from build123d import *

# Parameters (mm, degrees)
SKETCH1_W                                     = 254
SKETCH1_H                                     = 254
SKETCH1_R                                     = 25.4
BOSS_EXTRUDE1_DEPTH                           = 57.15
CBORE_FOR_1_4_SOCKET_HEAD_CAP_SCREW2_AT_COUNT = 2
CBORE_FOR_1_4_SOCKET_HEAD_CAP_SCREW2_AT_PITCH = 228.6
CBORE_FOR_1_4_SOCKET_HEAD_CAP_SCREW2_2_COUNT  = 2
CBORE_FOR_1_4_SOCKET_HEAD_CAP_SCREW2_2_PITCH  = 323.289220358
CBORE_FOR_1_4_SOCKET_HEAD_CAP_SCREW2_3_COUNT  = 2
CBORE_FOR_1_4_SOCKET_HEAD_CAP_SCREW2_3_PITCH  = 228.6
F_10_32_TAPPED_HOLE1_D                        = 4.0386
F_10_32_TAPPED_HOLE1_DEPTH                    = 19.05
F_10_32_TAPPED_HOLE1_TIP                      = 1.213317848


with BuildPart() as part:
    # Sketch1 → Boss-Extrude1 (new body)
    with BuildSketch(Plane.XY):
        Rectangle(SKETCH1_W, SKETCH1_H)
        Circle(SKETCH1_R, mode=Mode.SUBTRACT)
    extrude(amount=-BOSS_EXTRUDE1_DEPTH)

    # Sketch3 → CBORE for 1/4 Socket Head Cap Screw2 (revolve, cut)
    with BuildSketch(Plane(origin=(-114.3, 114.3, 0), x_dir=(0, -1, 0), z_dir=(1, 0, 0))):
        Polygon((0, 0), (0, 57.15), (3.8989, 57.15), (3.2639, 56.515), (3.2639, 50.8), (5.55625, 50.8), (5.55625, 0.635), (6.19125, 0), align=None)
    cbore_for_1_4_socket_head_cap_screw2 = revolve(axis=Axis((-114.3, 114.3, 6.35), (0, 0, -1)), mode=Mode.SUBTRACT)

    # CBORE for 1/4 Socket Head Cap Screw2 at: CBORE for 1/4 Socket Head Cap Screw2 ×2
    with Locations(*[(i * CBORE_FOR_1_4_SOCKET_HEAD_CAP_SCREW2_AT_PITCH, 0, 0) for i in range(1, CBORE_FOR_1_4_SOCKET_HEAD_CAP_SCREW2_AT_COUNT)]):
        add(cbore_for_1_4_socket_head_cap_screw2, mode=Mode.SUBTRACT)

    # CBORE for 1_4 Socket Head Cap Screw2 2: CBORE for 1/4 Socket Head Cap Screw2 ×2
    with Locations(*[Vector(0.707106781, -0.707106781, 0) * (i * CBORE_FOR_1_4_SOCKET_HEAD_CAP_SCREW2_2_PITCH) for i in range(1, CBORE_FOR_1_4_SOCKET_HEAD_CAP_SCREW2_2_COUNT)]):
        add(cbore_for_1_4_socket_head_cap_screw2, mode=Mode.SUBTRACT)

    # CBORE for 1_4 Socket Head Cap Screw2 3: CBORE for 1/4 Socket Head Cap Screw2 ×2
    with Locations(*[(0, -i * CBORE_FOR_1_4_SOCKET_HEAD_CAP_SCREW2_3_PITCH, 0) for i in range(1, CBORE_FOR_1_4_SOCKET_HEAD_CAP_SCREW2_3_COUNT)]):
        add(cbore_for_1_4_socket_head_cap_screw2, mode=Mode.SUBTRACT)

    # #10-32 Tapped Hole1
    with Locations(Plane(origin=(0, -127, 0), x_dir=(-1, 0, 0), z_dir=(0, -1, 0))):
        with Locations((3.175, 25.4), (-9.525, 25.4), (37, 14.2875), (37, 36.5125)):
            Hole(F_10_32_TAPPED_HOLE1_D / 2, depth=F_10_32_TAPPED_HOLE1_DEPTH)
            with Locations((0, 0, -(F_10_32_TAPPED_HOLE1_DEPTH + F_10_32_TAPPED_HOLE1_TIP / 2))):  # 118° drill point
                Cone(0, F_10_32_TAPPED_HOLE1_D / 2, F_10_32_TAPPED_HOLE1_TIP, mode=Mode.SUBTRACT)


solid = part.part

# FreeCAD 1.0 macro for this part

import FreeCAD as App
import Part
import Sketcher
Q = App.Units.Quantity


def add_polygon(sketch, points):
    """Adds a closed chain of lines whose ends are joined by coincident constraints."""
    first, n = sketch.GeometryCount, len(points)
    for a, b in zip(points, points[1:] + points[:1]):
        sketch.addGeometry(Part.LineSegment(App.Vector(*a, 0), App.Vector(*b, 0)), False)
    for i in range(n):
        sketch.addConstraint(Sketcher.Constraint("Coincident", first + i, 2, first + (i + 1) % n, 1))

doc = App.newDocument("Part")
body = doc.addObject("PartDesign::Body", "Body")

# Sketch on XY plane
sketch1 = doc.addObject("Sketcher::SketchObject", "Sketch")
body.addObject(sketch1)
sketch1.AttachmentSupport = (doc.XY_Plane, [""])
sketch1.MapMode = "FlatFace"
add_polygon(sketch1, [(-127, 127), (-127, -127), (127, -127), (127, 127)])  # lines 0-3
sketch1.addGeometry(Part.Circle(App.Vector(0, 0, 0), App.Vector(0, 0, 1), 25.4), False)  # 4
sketch1.addConstraint(Sketcher.Constraint("Vertical", 0))
sketch1.addConstraint(Sketcher.Constraint("Horizontal", 1))
sketch1.addConstraint(Sketcher.Constraint("Vertical", 2))
sketch1.addConstraint(Sketcher.Constraint("Horizontal", 3))
sketch1.addConstraint(Sketcher.Constraint("Coincident", 4, 3, -1, 1))
sketch1.addConstraint(Sketcher.Constraint("Symmetric", 0, 2, 2, 2, -1, 1))
sketch1.addConstraint(Sketcher.Constraint("Equal", 3, 0))
sketch1.addConstraint(Sketcher.Constraint("Diameter", 4, Q("2 in")))
sketch1.addConstraint(Sketcher.Constraint("DistanceX", 1, 1, 1, 2, Q("10 in")))
pad1 = doc.addObject("PartDesign::Pad", "Pad")
body.addObject(pad1)
pad1.Profile = sketch1
pad1.Length = Q("2.25 in")
pad1.Reversed = True

# Sketch on YZ plane
sketch2 = doc.addObject("Sketcher::SketchObject", "Sketch001")
body.addObject(sketch2)
sketch2.AttachmentSupport = (doc.YZ_Plane, [""])
sketch2.MapMode = "FlatFace"
sketch2.AttachmentOffset = App.Placement(App.Vector(0, 0, -4.5 * 25.4), App.Rotation())
add_polygon(sketch2, [(114.3, -57.15), (114.3, 0), (108.10875, 0), (108.74375, -0.635), (108.74375, -50.8), (111.0361, -50.8), (111.0361, -56.515), (110.4011, -57.15)])  # lines 0-7
sketch2.addGeometry(Part.LineSegment(App.Vector(114.3, 0, 0), App.Vector(114.3, -57.15, 0)), True)  # axis
sketch2.addConstraint(Sketcher.Constraint("Vertical", 0))
sketch2.addConstraint(Sketcher.Constraint("Horizontal", 1))
sketch2.addConstraint(Sketcher.Constraint("Vertical", 3))
sketch2.addConstraint(Sketcher.Constraint("Horizontal", 4))
sketch2.addConstraint(Sketcher.Constraint("Vertical", 5))
sketch2.addConstraint(Sketcher.Constraint("Horizontal", 7))
sketch2.addConstraint(Sketcher.Constraint("Vertical", 8))
sketch2.addConstraint(Sketcher.Constraint("Coincident", 8, 1, 0, 2))
sketch2.addConstraint(Sketcher.Constraint("PointOnObject", 0, 2, -1))
sketch2.addConstraint(Sketcher.Constraint("Perpendicular", 2, 6))
sketch2.addConstraint(Sketcher.Constraint("Horizontal", 6, 2, 8, 2))
sketch2.addConstraint(Sketcher.Constraint("Equal", 2, 6))
sketch2.addConstraint(Sketcher.Constraint("DistanceY", 3, 2, -1, 1, Q("2 in")))
sketch2.addConstraint(Sketcher.Constraint("Angle", 2, Q("-45 deg")))
sketch2.addConstraint(Sketcher.Constraint("DistanceY", 0, 1, 0, 2, Q("2.25 in")))
sketch2.addConstraint(Sketcher.Constraint("DistanceX", -1, 1, 0, 2, Q("4.5 in")))
sketch2.addConstraint(Sketcher.Constraint("DistanceY", 5, 2, 2, 2, Q("2.2 in")))
sketch2.addConstraint(Sketcher.Constraint("DistanceX", 7, 1, 7, 2, Q("0.1535 in")))
sketch2.addConstraint(Sketcher.Constraint("DistanceX", -1, 1, 2, 2, Q("4.28125 in")))
groove = doc.addObject("PartDesign::Groove", "Groove")
body.addObject(groove)
groove.Profile = sketch2
groove.ReferenceAxis = (sketch2, ["Axis0"])
groove.Angle = 360
doc.recompute()

linearpattern = doc.addObject("PartDesign::LinearPattern", "LinearPattern")
body.addObject(linearpattern)
linearpattern.Originals = [groove]
linearpattern.Direction = (doc.X_Axis, [""])
linearpattern.Mode = "offset"
linearpattern.Offset = Q("9 in")
linearpattern.Occurrences = 2
body.Tip = linearpattern
doc.recompute()

datumline = doc.addObject("PartDesign::Line", "DatumLine")
body.addObject(datumline)
datumline.Placement = App.Placement(App.Vector(0, 0, 0), App.Rotation(App.Vector(0, 0, 1), App.Vector(0.707106781, -0.707106781, 0)))
linearpattern2 = doc.addObject("PartDesign::LinearPattern", "LinearPattern001")
body.addObject(linearpattern2)
linearpattern2.Originals = [groove]
linearpattern2.Direction = (datumline, [""])
linearpattern2.Mode = "offset"
linearpattern2.Offset = 323.28922
linearpattern2.Occurrences = 2
body.Tip = linearpattern2
doc.recompute()

linearpattern3 = doc.addObject("PartDesign::LinearPattern", "LinearPattern002")
body.addObject(linearpattern3)
linearpattern3.Originals = [groove]
linearpattern3.Direction = (doc.Y_Axis, [""])
linearpattern3.Mode = "offset"
linearpattern3.Offset = Q("9 in")
linearpattern3.Occurrences = 2
linearpattern3.Reversed = True
body.Tip = linearpattern3

# Sketch on XZ plane
sketch3 = doc.addObject("Sketcher::SketchObject", "Sketch002")
body.addObject(sketch3)
sketch3.AttachmentSupport = (doc.XZ_Plane, [""])
sketch3.MapMode = "FlatFace"
sketch3.AttachmentOffset = App.Placement(App.Vector(0, 0, 5 * 25.4), App.Rotation())
sketch3.addGeometry(Part.Circle(App.Vector(-3.175, -25.4, 0), App.Vector(0, 0, 1), 2.0193), False)
sketch3.addGeometry(Part.Circle(App.Vector(9.525, -25.4, 0), App.Vector(0, 0, 1), 2.0193), False)
sketch3.addGeometry(Part.Circle(App.Vector(-37, -14.2875, 0), App.Vector(0, 0, 1), 2.0193), False)
sketch3.addGeometry(Part.Circle(App.Vector(-37, -36.5125, 0), App.Vector(0, 0, 1), 2.0193), False)
sketch3.addConstraint(Sketcher.Constraint("Equal", 0, 1))
sketch3.addConstraint(Sketcher.Constraint("Equal", 1, 2))
sketch3.addConstraint(Sketcher.Constraint("Equal", 2, 3))
sketch3.addConstraint(Sketcher.Constraint("Horizontal", 0, 3, 1, 3))
sketch3.addConstraint(Sketcher.Constraint("Vertical", 2, 3, 3, 3))
sketch3.addConstraint(Sketcher.Constraint("Diameter", 0, Q("0.159 in")))
sketch3.addConstraint(Sketcher.Constraint("DistanceY", 0, 3, -1, 1, Q("1 in")))
sketch3.addConstraint(Sketcher.Constraint("DistanceX", 0, 3, 1, 3, Q("0.5 in")))
sketch3.addConstraint(Sketcher.Constraint("DistanceX", 0, 3, -1, 1, Q("0.125 in")))
sketch3.addConstraint(Sketcher.Constraint("DistanceY", 2, 3, -1, 1, Q("0.5625 in")))
sketch3.addConstraint(Sketcher.Constraint("DistanceY", 3, 3, -1, 1, Q("1.4375 in")))
sketch3.addConstraint(Sketcher.Constraint("DistanceX", 2, 3, -1, 1, 37.0))
doc.recompute()
hole = doc.addObject("PartDesign::Hole", "Hole")
body.addObject(hole)
hole.Profile = sketch3
hole.ThreadType = "None"
hole.Diameter = Q("0.159 in")
hole.DepthType = "Dimension"
hole.Depth = Q("0.75 in")
hole.DrillPoint = "Angled"
hole.DrillPointAngle = 118

doc.recompute()
